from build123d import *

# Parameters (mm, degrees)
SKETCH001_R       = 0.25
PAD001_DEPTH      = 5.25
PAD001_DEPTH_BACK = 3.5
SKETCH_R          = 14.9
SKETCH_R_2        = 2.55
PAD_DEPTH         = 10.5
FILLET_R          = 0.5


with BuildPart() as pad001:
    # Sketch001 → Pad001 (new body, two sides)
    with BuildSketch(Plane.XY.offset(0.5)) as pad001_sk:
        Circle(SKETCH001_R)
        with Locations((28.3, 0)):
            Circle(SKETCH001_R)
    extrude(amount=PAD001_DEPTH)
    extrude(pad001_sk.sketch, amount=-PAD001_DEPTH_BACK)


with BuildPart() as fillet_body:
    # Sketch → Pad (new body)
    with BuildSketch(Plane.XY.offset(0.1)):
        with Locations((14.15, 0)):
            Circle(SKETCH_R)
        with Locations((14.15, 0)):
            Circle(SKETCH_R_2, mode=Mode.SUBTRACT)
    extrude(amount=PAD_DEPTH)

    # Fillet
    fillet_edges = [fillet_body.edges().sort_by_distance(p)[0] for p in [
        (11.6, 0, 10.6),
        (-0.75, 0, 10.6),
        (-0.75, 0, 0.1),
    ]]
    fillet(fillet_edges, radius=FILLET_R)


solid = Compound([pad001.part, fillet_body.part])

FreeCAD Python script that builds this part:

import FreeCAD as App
import Part
import Sketcher
Q = App.Units.Quantity


def edges_at(feature, points):
    """Names of the edges that pass closest to the given points."""
    edges = feature.Shape.Edges
    near = lambda p: min(range(len(edges)), key=lambda i: edges[i].distToShape(Part.Vertex(*p))[0])
    return sorted({f"Edge{near(p) + 1}" for p in points})

doc = App.newDocument("Part")
params = doc.addObject("Spreadsheet::Sheet", "Params")
for row, (alias, value) in enumerate([
    ("sketch1_diameter", "0.5 mm"),
    ("pad1_length", "5.25 mm"),
    ("pad1_length2", "3.5 mm"),
    ("sketch2_diameter", "29.8 mm"),
    ("sketch2_diameter2", "5.1 mm"),
    ("pad2_length", "10.5 mm"),
    ("fillet_radius", "0.5 mm"),
], start=1):
    params.set(f"A{row}", alias)
    params.set(f"B{row}", "=" + value)
    params.setAlias(f"B{row}", alias)

body = doc.addObject("PartDesign::Body", "Body")
body.AllowCompound = True

# Sketch on XY plane
sketch1 = body.newObject("Sketcher::SketchObject", "Sketch")
sketch1.AttachmentSupport = (doc.getObject("XY_Plane"), [""])
sketch1.MapMode = "FlatFace"
sketch1.AttachmentOffset = App.Placement(App.Vector(0, 0, 0.5), App.Rotation())
sketch1.addGeometry([
    Part.Circle(App.Vector(0, 0, 0), App.Vector(0, 0, 1), 0.25),
    Part.Circle(App.Vector(28.3, 0, 0), App.Vector(0, 0, 1), 0.25),
], False)
sketch1.addConstraint([
    Sketcher.Constraint("Coincident", 0, 3, -1, 1),
    Sketcher.Constraint("Equal", 0, 1),
    Sketcher.Constraint("PointOnObject", 1, 3, -1),
    Sketcher.Constraint("Diameter", 0, Q("0.5 mm")),
    Sketcher.Constraint("DistanceX", -1, 1, 1, 3, Q("28.3 mm")),
])
sketch1.setExpression("Constraints[3]", "Params.sketch1_diameter")
pad1 = body.newObject("PartDesign::Pad", "Pad")
pad1.Profile = sketch1
pad1.Type = "TwoLengths"
pad1.setExpression("Length", "Params.pad1_length")
pad1.setExpression("Length2", "Params.pad1_length2")
body2 = doc.addObject("PartDesign::Body", "Body001")

# Sketch on XY plane
sketch2 = body2.newObject("Sketcher::SketchObject", "Sketch001")
sketch2.AttachmentSupport = (doc.getObject("XY_Plane001"), [""])
sketch2.MapMode = "FlatFace"
sketch2.AttachmentOffset = App.Placement(App.Vector(0, 0, 0.1), App.Rotation())
sketch2.addGeometry([
    Part.Circle(App.Vector(14.2, 0, 0), App.Vector(0, 0, 1), 14.9),
    Part.Circle(App.Vector(14.2, 0, 0), App.Vector(0, 0, 1), 2.5),
], False)
sketch2.addConstraint([
    Sketcher.Constraint("Coincident", 1, 3, 0, 3),
    Sketcher.Constraint("PointOnObject", 0, 3, -1),
    Sketcher.Constraint("Diameter", 0, Q("29.8 mm")),
    Sketcher.Constraint("Diameter", 1, Q("5.1 mm")),
    Sketcher.Constraint("DistanceX", -1, 1, 0, 3, Q("14.15 mm")),
])
sketch2.setExpression("Constraints[2]", "Params.sketch2_diameter")
sketch2.setExpression("Constraints[3]", "Params.sketch2_diameter2")
pad2 = body2.newObject("PartDesign::Pad", "Pad001")
pad2.Profile = sketch2
pad2.setExpression("Length", "Params.pad2_length")
doc.recompute()

fillet = body2.newObject("PartDesign::Fillet", "Fillet")
fillet.Base = (pad2, edges_at(pad2, [(11.6, 0, 10.6), (-0.75, 0, 10.6), (-0.75, 0, 0.1)]))
fillet.setExpression("Radius", "Params.fillet_radius")

doc.recompute()
